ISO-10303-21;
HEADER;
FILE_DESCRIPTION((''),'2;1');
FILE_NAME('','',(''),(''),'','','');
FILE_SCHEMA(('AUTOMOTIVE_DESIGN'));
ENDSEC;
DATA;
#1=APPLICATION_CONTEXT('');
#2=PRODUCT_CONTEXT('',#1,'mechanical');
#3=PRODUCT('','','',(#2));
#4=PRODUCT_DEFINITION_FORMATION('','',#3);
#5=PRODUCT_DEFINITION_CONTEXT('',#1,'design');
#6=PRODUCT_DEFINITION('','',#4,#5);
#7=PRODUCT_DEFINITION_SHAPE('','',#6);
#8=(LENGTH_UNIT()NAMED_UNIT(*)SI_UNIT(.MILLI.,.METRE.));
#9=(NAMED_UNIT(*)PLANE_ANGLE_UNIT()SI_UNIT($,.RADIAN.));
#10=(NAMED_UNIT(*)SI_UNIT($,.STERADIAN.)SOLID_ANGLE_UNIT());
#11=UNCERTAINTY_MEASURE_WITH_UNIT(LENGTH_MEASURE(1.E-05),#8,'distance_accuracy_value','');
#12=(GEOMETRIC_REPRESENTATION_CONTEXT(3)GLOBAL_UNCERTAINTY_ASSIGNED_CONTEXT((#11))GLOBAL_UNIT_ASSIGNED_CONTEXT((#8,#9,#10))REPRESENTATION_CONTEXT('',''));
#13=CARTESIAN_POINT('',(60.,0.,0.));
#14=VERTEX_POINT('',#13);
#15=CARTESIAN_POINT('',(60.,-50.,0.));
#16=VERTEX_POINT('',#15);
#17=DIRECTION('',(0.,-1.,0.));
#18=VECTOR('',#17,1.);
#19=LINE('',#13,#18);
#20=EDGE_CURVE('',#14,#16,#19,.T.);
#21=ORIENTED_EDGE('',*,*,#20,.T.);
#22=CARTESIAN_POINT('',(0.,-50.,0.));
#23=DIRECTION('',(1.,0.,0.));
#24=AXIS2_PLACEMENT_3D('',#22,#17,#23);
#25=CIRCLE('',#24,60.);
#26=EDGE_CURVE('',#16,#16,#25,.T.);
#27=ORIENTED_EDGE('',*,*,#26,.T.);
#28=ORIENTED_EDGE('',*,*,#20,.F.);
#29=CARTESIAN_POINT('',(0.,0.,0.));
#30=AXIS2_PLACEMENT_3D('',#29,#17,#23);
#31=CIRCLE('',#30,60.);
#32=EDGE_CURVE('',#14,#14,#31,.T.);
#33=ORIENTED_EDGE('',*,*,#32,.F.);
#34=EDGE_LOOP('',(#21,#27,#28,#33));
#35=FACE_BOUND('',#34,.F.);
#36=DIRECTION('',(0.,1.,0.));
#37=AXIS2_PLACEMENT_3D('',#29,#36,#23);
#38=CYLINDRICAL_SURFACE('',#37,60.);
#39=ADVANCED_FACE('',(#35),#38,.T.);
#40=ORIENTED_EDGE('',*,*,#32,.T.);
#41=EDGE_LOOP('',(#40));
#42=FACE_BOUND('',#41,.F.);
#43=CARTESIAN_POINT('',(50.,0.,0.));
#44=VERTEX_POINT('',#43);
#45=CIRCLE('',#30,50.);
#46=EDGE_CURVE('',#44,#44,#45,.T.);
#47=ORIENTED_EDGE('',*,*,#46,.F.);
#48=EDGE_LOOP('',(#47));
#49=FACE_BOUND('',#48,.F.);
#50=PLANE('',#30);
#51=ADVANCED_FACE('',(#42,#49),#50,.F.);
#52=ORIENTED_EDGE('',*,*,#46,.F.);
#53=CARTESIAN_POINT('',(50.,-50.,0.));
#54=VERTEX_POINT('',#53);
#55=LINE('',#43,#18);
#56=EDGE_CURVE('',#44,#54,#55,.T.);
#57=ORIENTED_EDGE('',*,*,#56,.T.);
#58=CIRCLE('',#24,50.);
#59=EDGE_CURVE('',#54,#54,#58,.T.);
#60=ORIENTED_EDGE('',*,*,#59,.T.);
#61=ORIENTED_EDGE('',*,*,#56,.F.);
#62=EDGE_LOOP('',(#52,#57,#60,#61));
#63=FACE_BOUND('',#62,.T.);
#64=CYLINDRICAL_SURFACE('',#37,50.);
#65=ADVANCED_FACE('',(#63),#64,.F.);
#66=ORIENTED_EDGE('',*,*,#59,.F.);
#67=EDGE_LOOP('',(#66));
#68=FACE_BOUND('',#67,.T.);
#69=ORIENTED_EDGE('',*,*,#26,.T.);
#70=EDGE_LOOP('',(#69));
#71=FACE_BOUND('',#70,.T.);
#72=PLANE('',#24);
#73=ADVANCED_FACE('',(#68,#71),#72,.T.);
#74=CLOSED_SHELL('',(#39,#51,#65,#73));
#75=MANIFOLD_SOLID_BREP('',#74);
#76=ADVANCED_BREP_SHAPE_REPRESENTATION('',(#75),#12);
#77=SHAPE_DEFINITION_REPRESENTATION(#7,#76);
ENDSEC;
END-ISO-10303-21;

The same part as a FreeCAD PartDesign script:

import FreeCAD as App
import Part
import Sketcher

V = App.Vector
Q = App.Units.Quantity

doc = App.newDocument("Part")
params = doc.addObject("Spreadsheet::Sheet", "Params")
for row, (alias, value) in enumerate([
    ("sketch1_diameter", "120 mm"),
    ("sketch1_diameter2", "100 mm"),
    ("pad1_length", "50 mm"),
], start=1):
    params.set(f"A{row}", alias)
    params.set(f"B{row}", "=" + value)
    params.setAlias(f"B{row}", alias)

body = doc.addObject("PartDesign::Body", "Body")

# Sketch on XZ plane
sketch1 = doc.addObject("Sketcher::SketchObject", "Sketch")
body.addObject(sketch1)
sketch1.AttachmentSupport = (doc.XZ_Plane, [""])
sketch1.MapMode = "FlatFace"
sketch1.addGeometry([
    Part.Circle(V(0, 0, 0), V(0, 0, 1), 60),
    Part.Circle(V(0, 0, 0), V(0, 0, 1), 50),
], False)
sketch1.addConstraint([
    Sketcher.Constraint("Coincident", 0, 3, -1, 1),
    Sketcher.Constraint("Coincident", 1, 3, -1, 1),
    Sketcher.Constraint("Diameter", 0, Q("120 mm")),
    Sketcher.Constraint("Diameter", 1, Q("100 mm")),
])
sketch1.setExpression("Constraints[2]", "Params.sketch1_diameter")
sketch1.setExpression("Constraints[3]", "Params.sketch1_diameter2")
pad1 = doc.addObject("PartDesign::Pad", "Pad")
body.addObject(pad1)
pad1.Profile = sketch1
pad1.setExpression("Length", "Params.pad1_length")

doc.recompute()
